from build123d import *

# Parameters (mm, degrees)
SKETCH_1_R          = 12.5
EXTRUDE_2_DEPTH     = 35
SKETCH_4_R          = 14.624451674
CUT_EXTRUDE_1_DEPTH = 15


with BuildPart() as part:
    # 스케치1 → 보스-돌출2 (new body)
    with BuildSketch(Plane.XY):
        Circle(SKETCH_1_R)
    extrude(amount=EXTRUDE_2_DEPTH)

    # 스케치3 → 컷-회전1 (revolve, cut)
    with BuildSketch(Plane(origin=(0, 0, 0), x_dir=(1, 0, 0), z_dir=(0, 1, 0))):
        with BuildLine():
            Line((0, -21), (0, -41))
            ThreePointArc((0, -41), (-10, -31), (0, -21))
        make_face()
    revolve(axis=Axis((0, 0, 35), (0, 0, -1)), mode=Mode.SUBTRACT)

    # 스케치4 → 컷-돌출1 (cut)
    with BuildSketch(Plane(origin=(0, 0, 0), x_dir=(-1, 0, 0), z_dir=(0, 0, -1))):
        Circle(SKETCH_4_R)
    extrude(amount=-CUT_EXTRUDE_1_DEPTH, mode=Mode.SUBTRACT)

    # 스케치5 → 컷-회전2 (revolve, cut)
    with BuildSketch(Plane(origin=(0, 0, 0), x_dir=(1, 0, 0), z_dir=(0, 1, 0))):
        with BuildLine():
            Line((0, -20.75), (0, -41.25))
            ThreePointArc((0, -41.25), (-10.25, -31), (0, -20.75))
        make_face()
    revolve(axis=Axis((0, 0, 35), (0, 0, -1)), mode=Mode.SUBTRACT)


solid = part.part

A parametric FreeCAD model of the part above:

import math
import FreeCAD as App
import Part
import Sketcher

V = App.Vector

doc = App.newDocument("Part")
body = doc.addObject("PartDesign::Body", "Body")

sketch1 = doc.addObject("Sketcher::SketchObject", "Sketch")
body.addObject(sketch1)
sketch1.AttachmentSupport = (doc.XY_Plane, [""])
sketch1.MapMode = "FlatFace"
sketch1.addGeometry(Part.Circle(V(0, 0, 0), V(0, 0, 1), 12), False)
sketch1.addConstraint(Sketcher.Constraint("Coincident", 0, 3, -1, 1))
sketch1.addConstraint(Sketcher.Constraint("Diameter", 0, 25.0))
pad1 = doc.addObject("PartDesign::Pad", "Pad")
body.addObject(pad1)
pad1.Profile = sketch1
pad1.Length = 35

sketch2 = doc.addObject("Sketcher::SketchObject", "Sketch001")
body.addObject(sketch2)
sketch2.AttachmentSupport = (doc.XZ_Plane, [""])
sketch2.MapMode = "FlatFace"
sketch2.addGeometry(Part.LineSegment(V(0, 41, 0), V(0, 21, 0)), False)
sketch2.addGeometry(Part.ArcOfCircle(Part.Circle(V(0, 31, 0), V(0, 0, 1), 10), math.radians(90), math.radians(270)), False)
sketch2.addConstraint(Sketcher.Constraint("Coincident", 0, 1, 1, 1))
sketch2.addConstraint(Sketcher.Constraint("Coincident", 1, 2, 0, 2))
sketch2.addConstraint(Sketcher.Constraint("Vertical", 0))
sketch2.addConstraint(Sketcher.Constraint("PointOnObject", 1, 3, -2))
sketch2.addConstraint(Sketcher.Constraint("PointOnObject", 0, 1, -2))
sketch2.addConstraint(Sketcher.Constraint("Radius", 1, 10.0))
sketch2.addConstraint(Sketcher.Constraint("DistanceY", -1, 1, 1, 3, 31.0))
groove = doc.addObject("PartDesign::Groove", "Groove")
body.addObject(groove)
groove.Profile = sketch2
groove.ReferenceAxis = (sketch2, ["V_Axis"])
groove.Angle = 360

sketch3 = doc.addObject("Sketcher::SketchObject", "Sketch002")
body.addObject(sketch3)
sketch3.AttachmentSupport = (doc.XY_Plane, [""])
sketch3.MapMode = "FlatFace"
sketch3.addGeometry(Part.Circle(V(0, 0, 0), V(0, 0, 1), 15), False)
sketch3.addConstraint(Sketcher.Constraint("Coincident", 0, 3, -1, 1))
sketch3.addConstraint(Sketcher.Constraint("Diameter", 0, 29.248903))
pocket1 = doc.addObject("PartDesign::Pocket", "Pocket")
body.addObject(pocket1)
pocket1.Profile = sketch3
pocket1.Length = 15
pocket1.Reversed = True

sketch4 = doc.addObject("Sketcher::SketchObject", "Sketch003")
body.addObject(sketch4)
sketch4.AttachmentSupport = (doc.XZ_Plane, [""])
sketch4.MapMode = "FlatFace"
sketch4.addGeometry(Part.LineSegment(V(0, 41, 0), V(0, 21, 0)), False)
sketch4.addGeometry(Part.ArcOfCircle(Part.Circle(V(0, 31, 0), V(0, 0, 1), 10), math.radians(90), math.radians(270)), False)
sketch4.addConstraint(Sketcher.Constraint("Coincident", 0, 1, 1, 1))
sketch4.addConstraint(Sketcher.Constraint("Coincident", 1, 2, 0, 2))
sketch4.addConstraint(Sketcher.Constraint("Vertical", 0))
sketch4.addConstraint(Sketcher.Constraint("PointOnObject", 1, 3, -2))
sketch4.addConstraint(Sketcher.Constraint("PointOnObject", 0, 1, -2))
sketch4.addConstraint(Sketcher.Constraint("Radius", 1, 10.25))
sketch4.addConstraint(Sketcher.Constraint("DistanceY", -1, 1, 1, 3, 31.0))
groove2 = doc.addObject("PartDesign::Groove", "Groove001")
body.addObject(groove2)
groove2.Profile = sketch4
groove2.ReferenceAxis = (sketch4, ["V_Axis"])
groove2.Angle = 360

doc.recompute()
